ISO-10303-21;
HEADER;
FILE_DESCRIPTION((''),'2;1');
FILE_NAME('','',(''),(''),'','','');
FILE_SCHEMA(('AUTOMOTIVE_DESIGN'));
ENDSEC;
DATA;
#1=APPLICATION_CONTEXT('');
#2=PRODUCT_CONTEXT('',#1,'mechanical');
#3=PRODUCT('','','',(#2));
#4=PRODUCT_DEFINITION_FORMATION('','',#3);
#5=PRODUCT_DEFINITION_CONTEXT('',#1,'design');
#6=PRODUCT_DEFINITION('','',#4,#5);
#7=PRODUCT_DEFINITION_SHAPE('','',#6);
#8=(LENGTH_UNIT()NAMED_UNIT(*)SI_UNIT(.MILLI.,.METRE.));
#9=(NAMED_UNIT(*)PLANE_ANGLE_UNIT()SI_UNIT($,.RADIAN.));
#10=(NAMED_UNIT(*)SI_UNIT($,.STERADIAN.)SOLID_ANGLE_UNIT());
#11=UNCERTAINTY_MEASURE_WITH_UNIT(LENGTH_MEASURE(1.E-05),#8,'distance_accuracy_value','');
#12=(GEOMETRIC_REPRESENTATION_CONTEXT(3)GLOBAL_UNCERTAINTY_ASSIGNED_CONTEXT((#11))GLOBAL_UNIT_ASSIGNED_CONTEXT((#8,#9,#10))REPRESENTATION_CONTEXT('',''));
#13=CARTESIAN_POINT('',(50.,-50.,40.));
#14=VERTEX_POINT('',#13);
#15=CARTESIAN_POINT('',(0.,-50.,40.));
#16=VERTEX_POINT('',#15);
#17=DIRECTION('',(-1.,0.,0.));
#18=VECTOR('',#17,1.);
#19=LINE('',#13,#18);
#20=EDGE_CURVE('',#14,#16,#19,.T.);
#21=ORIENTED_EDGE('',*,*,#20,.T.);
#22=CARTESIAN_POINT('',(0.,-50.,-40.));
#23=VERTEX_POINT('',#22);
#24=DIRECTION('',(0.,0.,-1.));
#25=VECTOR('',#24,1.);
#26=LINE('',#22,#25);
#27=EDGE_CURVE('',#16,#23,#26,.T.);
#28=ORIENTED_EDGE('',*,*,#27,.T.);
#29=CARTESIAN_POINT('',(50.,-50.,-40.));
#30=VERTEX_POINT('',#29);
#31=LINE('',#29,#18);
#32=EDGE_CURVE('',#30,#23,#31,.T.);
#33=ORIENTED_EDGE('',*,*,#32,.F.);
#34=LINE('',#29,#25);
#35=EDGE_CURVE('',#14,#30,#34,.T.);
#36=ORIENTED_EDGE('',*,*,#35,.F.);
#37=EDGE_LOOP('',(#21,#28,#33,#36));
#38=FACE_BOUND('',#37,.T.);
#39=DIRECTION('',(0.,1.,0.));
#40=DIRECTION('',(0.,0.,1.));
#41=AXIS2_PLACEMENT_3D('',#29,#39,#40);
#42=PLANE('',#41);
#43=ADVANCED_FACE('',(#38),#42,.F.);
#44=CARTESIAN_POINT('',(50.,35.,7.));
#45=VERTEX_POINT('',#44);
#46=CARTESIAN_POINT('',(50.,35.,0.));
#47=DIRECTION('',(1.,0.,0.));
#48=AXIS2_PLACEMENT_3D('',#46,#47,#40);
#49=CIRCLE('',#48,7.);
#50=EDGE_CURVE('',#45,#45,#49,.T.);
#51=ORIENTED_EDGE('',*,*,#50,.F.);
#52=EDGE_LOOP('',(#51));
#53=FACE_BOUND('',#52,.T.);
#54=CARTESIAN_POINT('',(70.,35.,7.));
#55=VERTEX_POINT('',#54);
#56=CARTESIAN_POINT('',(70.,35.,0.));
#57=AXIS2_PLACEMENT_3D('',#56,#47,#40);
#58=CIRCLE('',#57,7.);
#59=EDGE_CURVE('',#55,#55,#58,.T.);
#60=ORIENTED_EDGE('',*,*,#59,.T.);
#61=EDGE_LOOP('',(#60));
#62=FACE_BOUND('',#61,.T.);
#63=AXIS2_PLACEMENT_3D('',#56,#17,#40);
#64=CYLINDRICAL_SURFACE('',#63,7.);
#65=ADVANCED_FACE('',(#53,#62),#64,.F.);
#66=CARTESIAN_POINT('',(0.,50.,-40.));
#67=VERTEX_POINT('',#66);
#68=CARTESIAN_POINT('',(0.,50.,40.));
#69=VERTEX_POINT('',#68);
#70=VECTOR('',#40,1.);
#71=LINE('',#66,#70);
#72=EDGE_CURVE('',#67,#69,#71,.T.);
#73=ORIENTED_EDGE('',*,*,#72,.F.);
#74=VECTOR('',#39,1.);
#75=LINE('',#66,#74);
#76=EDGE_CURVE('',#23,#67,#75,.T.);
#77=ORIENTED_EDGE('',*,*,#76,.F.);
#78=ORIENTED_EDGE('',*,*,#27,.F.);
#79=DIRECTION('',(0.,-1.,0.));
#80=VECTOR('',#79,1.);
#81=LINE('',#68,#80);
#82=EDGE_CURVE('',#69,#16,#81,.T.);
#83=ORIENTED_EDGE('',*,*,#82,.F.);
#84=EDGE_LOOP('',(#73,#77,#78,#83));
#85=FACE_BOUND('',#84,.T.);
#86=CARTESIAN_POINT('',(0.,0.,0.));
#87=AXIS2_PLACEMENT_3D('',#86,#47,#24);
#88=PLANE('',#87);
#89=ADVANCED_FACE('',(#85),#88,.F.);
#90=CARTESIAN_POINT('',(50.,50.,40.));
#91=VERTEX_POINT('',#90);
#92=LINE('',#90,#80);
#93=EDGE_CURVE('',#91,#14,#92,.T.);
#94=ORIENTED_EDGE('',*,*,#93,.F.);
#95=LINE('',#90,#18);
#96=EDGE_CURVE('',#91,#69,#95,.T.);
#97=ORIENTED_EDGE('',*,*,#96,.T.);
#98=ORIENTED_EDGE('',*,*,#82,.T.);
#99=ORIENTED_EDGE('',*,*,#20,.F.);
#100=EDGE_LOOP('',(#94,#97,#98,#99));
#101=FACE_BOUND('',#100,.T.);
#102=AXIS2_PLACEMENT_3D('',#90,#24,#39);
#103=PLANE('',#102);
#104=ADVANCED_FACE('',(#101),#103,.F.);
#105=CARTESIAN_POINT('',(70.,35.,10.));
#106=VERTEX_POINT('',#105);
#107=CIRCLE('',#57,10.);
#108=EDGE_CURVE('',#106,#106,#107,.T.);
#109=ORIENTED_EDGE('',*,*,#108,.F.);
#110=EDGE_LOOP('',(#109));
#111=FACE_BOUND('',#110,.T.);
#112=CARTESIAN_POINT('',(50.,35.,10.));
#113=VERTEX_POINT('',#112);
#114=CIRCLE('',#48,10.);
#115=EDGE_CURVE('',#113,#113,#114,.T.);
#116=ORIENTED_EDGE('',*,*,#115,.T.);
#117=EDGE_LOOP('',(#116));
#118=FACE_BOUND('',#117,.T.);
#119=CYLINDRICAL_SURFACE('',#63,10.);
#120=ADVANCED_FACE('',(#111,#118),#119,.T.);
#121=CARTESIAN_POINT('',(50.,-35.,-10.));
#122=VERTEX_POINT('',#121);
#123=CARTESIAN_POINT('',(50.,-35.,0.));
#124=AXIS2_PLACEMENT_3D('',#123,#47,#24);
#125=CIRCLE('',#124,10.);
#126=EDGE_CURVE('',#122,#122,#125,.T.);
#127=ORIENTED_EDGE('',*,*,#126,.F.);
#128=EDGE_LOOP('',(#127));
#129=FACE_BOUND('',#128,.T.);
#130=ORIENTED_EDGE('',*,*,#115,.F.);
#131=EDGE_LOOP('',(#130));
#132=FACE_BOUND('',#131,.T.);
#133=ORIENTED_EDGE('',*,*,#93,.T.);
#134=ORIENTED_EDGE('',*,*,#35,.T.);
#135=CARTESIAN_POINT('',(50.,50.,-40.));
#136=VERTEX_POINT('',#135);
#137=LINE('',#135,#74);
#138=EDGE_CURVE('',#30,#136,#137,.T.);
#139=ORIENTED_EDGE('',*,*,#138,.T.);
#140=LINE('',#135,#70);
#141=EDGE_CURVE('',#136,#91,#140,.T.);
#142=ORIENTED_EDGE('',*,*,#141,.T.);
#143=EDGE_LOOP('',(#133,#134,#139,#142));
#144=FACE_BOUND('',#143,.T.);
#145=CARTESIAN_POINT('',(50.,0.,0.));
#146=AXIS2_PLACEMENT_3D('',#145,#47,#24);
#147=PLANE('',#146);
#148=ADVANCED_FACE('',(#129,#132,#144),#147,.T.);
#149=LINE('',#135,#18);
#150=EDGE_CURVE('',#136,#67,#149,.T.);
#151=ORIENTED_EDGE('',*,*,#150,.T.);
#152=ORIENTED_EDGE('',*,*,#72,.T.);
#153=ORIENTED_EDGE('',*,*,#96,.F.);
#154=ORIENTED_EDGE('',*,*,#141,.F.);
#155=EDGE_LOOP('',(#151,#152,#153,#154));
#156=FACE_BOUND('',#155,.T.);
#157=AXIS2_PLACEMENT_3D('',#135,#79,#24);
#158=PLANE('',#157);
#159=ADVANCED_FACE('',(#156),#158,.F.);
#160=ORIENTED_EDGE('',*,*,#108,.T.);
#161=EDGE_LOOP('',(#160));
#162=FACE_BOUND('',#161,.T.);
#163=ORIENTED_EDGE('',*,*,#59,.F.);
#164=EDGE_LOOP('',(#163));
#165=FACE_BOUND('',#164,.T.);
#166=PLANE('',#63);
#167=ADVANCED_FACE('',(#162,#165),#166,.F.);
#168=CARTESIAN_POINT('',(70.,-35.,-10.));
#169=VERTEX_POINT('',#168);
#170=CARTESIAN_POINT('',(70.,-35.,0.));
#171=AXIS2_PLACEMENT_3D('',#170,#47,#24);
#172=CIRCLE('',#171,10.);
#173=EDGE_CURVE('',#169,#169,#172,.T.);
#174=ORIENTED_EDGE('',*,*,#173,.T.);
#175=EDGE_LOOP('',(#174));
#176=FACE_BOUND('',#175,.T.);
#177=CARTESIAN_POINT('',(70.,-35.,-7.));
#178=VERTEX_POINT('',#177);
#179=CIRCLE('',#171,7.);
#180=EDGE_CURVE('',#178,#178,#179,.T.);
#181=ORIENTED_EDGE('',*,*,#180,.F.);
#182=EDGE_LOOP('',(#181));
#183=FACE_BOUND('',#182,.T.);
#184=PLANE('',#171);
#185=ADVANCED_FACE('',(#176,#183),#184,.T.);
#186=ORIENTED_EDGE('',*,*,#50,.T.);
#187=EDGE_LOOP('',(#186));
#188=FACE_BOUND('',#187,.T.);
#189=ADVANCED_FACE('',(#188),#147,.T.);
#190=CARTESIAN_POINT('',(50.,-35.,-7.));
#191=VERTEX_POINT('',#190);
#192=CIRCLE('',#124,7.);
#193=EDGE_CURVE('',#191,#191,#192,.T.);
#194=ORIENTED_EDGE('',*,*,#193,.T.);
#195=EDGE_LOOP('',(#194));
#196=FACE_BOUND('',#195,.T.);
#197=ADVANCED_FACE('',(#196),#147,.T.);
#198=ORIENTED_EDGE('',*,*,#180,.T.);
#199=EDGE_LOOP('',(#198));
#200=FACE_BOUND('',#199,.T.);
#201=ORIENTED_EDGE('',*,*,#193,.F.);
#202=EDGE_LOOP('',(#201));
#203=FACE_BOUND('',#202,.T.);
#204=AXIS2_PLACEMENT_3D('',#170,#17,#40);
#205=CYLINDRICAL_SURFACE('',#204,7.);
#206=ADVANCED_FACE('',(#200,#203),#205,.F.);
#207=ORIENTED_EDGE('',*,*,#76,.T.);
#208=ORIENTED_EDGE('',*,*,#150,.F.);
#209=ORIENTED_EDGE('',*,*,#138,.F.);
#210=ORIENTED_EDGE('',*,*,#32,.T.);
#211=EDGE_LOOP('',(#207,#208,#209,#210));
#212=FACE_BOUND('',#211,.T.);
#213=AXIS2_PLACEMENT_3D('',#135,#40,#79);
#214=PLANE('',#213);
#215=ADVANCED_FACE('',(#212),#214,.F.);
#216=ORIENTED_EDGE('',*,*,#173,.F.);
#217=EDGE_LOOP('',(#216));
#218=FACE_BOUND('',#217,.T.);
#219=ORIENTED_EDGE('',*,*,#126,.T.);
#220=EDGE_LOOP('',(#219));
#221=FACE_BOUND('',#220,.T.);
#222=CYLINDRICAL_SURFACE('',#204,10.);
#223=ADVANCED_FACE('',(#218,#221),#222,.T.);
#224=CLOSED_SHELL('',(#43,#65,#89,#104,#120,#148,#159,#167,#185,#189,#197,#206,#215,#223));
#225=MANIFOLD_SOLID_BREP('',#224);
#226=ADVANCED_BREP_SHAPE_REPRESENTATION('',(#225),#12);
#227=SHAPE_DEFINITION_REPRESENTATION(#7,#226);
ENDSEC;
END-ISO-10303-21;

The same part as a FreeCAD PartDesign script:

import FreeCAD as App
import Part
import Sketcher

doc = App.newDocument("Part")
body = doc.addObject("PartDesign::Body", "Body")

sketch1 = doc.addObject("Sketcher::SketchObject", "Sketch")
body.addObject(sketch1)
sketch1.AttachmentSupport = (doc.YZ_Plane, [""])
sketch1.MapMode = "FlatFace"
sketch1.addGeometry(Part.LineSegment(App.Vector(-50, 40, 0), App.Vector(-50, -40, 0)), False)
sketch1.addGeometry(Part.LineSegment(App.Vector(-50, -40, 0), App.Vector(50, -40, 0)), False)
sketch1.addGeometry(Part.LineSegment(App.Vector(50, -40, 0), App.Vector(50, 40, 0)), False)
sketch1.addGeometry(Part.LineSegment(App.Vector(50, 40, 0), App.Vector(-50, 40, 0)), False)
sketch1.addConstraint(Sketcher.Constraint("Coincident", 0, 2, 1, 1))
sketch1.addConstraint(Sketcher.Constraint("Coincident", 1, 2, 2, 1))
sketch1.addConstraint(Sketcher.Constraint("Coincident", 2, 2, 3, 1))
sketch1.addConstraint(Sketcher.Constraint("Coincident", 3, 2, 0, 1))
sketch1.addConstraint(Sketcher.Constraint("Vertical", 0))
sketch1.addConstraint(Sketcher.Constraint("Horizontal", 1))
sketch1.addConstraint(Sketcher.Constraint("Vertical", 2))
sketch1.addConstraint(Sketcher.Constraint("Horizontal", 3))
sketch1.addConstraint(Sketcher.Constraint("Symmetric", 0, 2, 2, 2, -1, 1))
sketch1.addConstraint(Sketcher.Constraint("DistanceX", 1, 1, 1, 2, 100.0))
sketch1.addConstraint(Sketcher.Constraint("DistanceY", 0, 2, 0, 1, 80.0))
pad1 = doc.addObject("PartDesign::Pad", "Pad")
body.addObject(pad1)
pad1.Profile = sketch1
pad1.Length = 50

sketch2 = doc.addObject("Sketcher::SketchObject", "Sketch001")
body.addObject(sketch2)
sketch2.AttachmentSupport = (doc.YZ_Plane, [""])
sketch2.MapMode = "FlatFace"
sketch2.AttachmentOffset = App.Placement(App.Vector(0, 0, 50), App.Rotation())
sketch2.addGeometry(Part.Circle(App.Vector(-35, 0, 0), App.Vector(0, 0, 1), 10), False)
sketch2.addGeometry(Part.Circle(App.Vector(-35, 0, 0), App.Vector(0, 0, 1), 7), False)
sketch2.addGeometry(Part.Circle(App.Vector(35, 0, 0), App.Vector(0, 0, 1), 10), False)
sketch2.addGeometry(Part.Circle(App.Vector(35, 0, 0), App.Vector(0, 0, 1), 7), False)
sketch2.addConstraint(Sketcher.Constraint("Coincident", 1, 3, 0, 3))
sketch2.addConstraint(Sketcher.Constraint("Coincident", 3, 3, 2, 3))
sketch2.addConstraint(Sketcher.Constraint("Equal", 0, 2))
sketch2.addConstraint(Sketcher.Constraint("Equal", 1, 3))
sketch2.addConstraint(Sketcher.Constraint("Symmetric", 0, 3, 2, 3, -1, 1))
sketch2.addConstraint(Sketcher.Constraint("PointOnObject", 0, 3, -1))
sketch2.addConstraint(Sketcher.Constraint("Diameter", 0, 20.0))
sketch2.addConstraint(Sketcher.Constraint("Diameter", 1, 14.0))
sketch2.addConstraint(Sketcher.Constraint("DistanceX", 0, 3, -1, 1, 35.0))
pad2 = doc.addObject("PartDesign::Pad", "Pad001")
body.addObject(pad2)
pad2.Profile = sketch2
pad2.Length = 20

doc.recompute()
